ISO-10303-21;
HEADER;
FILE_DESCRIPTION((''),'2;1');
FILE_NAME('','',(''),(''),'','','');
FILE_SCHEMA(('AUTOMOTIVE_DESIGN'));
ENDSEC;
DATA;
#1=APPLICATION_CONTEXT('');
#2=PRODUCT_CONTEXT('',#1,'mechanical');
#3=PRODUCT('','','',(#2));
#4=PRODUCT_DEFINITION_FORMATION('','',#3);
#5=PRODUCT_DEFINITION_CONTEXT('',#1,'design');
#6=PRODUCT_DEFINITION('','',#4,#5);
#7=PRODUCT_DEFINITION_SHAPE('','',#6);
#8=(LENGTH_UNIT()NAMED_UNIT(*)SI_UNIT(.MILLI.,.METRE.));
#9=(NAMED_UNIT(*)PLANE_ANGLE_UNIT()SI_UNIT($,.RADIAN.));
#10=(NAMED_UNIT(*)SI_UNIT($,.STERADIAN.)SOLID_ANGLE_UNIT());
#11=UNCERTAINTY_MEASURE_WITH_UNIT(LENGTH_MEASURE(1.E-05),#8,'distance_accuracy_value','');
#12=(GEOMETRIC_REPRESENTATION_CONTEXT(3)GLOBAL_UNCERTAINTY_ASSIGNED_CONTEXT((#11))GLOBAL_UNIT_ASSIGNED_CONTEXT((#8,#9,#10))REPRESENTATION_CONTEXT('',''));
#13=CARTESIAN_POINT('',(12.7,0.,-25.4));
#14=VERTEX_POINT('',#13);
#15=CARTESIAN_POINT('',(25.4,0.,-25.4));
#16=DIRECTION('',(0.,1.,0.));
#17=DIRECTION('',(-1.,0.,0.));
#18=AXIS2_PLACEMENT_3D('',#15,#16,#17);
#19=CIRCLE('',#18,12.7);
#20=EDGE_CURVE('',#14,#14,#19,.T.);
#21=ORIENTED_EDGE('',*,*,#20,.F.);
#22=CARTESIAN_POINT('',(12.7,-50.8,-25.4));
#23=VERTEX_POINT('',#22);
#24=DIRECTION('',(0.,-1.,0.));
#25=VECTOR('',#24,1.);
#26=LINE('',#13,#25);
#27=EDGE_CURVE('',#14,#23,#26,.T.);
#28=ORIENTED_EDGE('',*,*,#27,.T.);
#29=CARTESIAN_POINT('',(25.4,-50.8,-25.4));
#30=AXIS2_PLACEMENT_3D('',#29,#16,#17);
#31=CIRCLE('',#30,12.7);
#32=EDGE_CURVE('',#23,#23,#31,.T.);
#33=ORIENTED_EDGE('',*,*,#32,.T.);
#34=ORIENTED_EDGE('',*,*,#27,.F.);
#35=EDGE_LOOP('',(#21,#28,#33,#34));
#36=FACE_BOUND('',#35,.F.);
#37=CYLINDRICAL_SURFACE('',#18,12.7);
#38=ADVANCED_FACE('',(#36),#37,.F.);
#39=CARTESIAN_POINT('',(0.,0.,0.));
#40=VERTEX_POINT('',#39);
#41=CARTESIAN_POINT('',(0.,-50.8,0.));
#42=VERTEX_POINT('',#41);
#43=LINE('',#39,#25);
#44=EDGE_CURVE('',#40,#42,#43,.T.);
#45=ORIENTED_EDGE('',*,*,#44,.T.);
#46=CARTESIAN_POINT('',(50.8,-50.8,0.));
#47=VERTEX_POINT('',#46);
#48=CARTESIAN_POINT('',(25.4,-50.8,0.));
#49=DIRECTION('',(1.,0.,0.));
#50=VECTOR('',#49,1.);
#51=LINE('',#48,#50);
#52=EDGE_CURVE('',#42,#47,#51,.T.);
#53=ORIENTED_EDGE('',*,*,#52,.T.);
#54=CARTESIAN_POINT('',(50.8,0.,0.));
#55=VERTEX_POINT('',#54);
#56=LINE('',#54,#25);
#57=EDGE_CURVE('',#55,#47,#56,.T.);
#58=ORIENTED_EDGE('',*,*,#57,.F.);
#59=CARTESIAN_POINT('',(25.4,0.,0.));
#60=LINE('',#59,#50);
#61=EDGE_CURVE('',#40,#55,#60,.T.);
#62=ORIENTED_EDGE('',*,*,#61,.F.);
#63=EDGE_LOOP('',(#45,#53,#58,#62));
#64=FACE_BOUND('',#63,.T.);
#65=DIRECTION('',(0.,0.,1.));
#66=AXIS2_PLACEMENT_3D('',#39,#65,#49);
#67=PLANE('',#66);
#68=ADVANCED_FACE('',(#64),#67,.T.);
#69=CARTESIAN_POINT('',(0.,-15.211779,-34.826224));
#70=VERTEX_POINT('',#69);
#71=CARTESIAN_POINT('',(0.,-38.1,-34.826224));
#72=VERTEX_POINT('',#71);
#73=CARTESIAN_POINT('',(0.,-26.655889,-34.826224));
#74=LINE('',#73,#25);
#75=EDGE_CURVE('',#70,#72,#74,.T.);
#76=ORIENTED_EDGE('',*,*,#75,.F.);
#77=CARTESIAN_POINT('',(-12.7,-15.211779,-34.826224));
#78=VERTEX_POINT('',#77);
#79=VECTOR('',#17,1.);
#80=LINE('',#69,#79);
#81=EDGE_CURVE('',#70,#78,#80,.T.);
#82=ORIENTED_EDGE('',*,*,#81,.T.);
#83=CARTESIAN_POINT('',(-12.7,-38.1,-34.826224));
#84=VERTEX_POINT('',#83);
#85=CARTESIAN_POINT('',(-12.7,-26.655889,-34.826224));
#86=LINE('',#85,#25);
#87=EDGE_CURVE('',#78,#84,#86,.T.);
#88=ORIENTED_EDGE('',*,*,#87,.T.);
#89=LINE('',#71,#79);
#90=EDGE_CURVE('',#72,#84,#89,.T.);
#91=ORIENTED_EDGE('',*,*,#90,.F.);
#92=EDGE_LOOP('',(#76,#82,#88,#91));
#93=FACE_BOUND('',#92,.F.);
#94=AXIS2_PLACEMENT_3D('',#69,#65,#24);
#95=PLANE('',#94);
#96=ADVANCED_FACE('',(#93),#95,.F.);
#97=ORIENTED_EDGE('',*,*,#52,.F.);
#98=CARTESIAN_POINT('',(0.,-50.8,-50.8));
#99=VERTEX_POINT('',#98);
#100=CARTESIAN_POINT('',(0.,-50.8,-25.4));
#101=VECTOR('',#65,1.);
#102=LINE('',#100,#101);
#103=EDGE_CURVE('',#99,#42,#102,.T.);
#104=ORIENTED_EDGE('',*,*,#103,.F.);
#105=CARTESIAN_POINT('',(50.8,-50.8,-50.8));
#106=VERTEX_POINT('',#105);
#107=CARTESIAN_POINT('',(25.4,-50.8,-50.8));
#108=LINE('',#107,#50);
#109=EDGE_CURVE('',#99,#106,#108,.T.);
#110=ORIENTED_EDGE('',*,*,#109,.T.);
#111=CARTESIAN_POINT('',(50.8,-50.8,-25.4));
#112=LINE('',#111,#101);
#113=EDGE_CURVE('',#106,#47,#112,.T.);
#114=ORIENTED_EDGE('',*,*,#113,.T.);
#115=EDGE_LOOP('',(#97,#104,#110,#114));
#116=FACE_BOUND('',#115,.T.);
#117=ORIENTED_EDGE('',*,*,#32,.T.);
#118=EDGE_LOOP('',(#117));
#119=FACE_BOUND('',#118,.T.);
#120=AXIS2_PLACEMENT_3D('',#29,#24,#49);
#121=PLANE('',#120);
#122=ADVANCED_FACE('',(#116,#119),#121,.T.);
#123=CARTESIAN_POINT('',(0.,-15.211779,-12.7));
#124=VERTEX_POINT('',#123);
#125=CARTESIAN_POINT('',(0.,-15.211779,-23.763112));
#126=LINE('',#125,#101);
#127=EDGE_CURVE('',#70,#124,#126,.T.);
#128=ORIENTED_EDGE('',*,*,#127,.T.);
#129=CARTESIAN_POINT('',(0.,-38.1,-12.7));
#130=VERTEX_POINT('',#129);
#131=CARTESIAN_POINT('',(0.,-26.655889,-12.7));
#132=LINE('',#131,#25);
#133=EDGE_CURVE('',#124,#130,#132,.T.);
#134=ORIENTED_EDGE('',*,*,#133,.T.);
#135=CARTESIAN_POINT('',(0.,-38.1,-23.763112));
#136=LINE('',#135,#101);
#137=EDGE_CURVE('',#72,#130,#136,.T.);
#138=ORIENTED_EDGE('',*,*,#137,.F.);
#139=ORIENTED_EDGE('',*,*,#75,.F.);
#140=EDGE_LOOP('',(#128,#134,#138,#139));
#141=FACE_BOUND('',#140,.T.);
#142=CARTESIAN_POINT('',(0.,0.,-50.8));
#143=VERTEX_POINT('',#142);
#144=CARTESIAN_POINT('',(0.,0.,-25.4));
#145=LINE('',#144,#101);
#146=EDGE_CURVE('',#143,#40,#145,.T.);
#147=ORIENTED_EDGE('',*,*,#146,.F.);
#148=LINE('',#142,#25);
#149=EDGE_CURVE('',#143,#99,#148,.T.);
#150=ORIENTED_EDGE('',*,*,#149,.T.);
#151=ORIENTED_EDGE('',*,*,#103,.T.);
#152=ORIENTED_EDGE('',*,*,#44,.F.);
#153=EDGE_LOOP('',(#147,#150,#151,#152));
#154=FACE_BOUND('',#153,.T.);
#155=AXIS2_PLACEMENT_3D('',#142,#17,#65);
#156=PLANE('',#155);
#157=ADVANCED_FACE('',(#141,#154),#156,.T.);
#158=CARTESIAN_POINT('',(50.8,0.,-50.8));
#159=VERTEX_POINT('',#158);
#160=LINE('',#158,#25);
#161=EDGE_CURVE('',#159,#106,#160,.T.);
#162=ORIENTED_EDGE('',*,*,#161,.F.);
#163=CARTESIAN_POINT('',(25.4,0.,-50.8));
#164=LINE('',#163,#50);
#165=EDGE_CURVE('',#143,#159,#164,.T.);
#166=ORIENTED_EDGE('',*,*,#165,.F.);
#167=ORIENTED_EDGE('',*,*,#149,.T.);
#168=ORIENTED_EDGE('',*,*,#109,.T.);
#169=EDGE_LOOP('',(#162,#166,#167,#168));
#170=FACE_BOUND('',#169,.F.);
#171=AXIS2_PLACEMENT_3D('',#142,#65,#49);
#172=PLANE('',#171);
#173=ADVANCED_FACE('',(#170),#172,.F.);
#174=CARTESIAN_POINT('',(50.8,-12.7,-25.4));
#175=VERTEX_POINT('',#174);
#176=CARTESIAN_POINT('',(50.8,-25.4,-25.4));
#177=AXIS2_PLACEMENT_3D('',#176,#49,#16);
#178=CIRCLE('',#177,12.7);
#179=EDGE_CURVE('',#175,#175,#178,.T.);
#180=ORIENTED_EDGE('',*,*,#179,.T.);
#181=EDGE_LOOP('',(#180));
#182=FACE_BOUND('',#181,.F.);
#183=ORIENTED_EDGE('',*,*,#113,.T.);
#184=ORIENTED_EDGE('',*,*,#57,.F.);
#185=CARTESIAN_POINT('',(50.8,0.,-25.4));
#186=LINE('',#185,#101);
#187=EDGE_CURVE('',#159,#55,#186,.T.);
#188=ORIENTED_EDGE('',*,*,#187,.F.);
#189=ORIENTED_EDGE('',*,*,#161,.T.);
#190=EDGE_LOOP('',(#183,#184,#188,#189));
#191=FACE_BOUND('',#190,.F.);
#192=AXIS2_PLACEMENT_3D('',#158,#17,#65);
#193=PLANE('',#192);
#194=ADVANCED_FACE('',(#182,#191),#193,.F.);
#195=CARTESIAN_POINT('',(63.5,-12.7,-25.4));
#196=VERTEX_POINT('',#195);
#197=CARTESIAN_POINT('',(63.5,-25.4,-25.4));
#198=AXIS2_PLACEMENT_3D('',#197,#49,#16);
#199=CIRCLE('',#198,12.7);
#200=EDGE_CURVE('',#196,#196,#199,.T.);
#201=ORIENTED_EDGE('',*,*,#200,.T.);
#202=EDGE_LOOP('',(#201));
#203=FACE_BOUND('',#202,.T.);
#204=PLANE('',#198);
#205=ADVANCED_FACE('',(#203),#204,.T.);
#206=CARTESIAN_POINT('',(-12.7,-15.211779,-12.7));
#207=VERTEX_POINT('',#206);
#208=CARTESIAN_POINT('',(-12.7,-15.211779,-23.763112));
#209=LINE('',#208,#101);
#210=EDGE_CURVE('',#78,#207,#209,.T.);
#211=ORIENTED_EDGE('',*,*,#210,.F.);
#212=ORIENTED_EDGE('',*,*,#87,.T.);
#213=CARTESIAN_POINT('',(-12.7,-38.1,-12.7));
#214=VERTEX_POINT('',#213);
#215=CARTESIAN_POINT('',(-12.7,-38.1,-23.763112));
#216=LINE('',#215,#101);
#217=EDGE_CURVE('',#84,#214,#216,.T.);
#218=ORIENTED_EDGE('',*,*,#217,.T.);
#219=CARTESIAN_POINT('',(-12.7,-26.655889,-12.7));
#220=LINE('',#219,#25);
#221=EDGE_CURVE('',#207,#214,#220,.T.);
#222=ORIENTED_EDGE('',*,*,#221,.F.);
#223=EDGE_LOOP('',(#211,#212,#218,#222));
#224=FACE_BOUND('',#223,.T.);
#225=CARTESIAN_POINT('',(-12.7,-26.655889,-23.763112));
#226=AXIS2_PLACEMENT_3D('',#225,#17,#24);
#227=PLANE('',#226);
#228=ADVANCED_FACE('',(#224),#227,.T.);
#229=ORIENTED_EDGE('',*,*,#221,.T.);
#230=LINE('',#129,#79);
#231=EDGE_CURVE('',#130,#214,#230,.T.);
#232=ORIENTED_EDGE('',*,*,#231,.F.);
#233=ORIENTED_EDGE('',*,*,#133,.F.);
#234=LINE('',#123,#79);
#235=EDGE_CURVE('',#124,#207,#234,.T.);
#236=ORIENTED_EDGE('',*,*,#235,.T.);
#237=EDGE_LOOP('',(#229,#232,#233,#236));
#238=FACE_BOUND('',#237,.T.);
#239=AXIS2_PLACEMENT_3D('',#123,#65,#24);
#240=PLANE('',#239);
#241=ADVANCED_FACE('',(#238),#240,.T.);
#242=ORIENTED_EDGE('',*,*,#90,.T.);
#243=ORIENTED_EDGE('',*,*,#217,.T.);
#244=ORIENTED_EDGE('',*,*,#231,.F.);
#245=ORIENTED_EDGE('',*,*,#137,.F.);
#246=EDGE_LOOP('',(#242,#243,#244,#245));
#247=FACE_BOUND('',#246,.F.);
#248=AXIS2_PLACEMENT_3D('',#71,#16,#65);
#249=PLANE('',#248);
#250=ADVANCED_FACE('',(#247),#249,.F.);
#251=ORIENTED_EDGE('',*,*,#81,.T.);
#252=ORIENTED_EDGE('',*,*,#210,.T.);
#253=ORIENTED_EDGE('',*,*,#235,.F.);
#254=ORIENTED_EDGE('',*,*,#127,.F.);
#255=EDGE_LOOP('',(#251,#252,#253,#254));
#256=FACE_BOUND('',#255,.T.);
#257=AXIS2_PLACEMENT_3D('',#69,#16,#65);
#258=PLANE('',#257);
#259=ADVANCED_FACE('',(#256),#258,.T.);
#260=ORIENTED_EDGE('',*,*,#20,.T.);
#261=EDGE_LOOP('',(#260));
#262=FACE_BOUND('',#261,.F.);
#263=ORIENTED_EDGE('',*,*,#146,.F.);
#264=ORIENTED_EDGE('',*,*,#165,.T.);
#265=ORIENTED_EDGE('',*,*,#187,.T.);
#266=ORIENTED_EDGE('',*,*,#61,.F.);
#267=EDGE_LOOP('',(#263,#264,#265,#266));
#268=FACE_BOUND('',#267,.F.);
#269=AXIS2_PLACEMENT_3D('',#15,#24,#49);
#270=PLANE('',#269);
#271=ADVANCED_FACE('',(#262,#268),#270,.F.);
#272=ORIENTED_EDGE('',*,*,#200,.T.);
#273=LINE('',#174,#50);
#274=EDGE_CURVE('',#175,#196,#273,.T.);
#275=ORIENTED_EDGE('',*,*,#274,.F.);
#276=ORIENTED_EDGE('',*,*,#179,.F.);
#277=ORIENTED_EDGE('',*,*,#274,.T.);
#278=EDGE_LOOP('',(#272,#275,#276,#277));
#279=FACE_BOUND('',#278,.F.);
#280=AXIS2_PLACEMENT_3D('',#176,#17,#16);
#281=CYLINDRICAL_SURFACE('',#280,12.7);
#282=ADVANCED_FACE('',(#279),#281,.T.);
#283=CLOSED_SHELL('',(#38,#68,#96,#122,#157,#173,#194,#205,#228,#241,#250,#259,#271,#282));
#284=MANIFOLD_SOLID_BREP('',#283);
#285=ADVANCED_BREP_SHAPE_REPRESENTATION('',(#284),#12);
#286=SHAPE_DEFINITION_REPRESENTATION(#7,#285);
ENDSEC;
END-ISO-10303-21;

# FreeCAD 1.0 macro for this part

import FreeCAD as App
import Part
import Sketcher
Q = App.Units.Quantity

doc = App.newDocument("Part")
body = doc.addObject("PartDesign::Body", "Body")

sketch1 = body.newObject("Sketcher::SketchObject", "Sketch")
sketch1.AttachmentSupport = (doc.getObject("XZ_Plane"), [""])
sketch1.MapMode = "FlatFace"
sketch1.addGeometry(Part.LineSegment(App.Vector(0, 0, 0), App.Vector(0, -50.8, 0)), False)
sketch1.addGeometry(Part.LineSegment(App.Vector(0, -50.8, 0), App.Vector(50.8, -50.8, 0)), False)
sketch1.addGeometry(Part.LineSegment(App.Vector(50.8, -50.8, 0), App.Vector(50.8, 0, 0)), False)
sketch1.addGeometry(Part.LineSegment(App.Vector(50.8, 0, 0), App.Vector(0, 0, 0)), False)
sketch1.addConstraint(Sketcher.Constraint("Coincident", 0, 2, 1, 1))
sketch1.addConstraint(Sketcher.Constraint("Coincident", 1, 2, 2, 1))
sketch1.addConstraint(Sketcher.Constraint("Coincident", 2, 2, 3, 1))
sketch1.addConstraint(Sketcher.Constraint("Coincident", 3, 2, 0, 1))
sketch1.addConstraint(Sketcher.Constraint("Vertical", 0))
sketch1.addConstraint(Sketcher.Constraint("Horizontal", 1))
sketch1.addConstraint(Sketcher.Constraint("Vertical", 2))
sketch1.addConstraint(Sketcher.Constraint("Horizontal", 3))
sketch1.addConstraint(Sketcher.Constraint("Coincident", 3, 2, -1, 1))
sketch1.addConstraint(Sketcher.Constraint("Equal", 3, 0))
sketch1.addConstraint(Sketcher.Constraint("DistanceX", 1, 1, 1, 2, Q("2 in")))
pad1 = body.newObject("PartDesign::Pad", "Pad")
pad1.Profile = sketch1
pad1.Length = Q("2 in")

sketch2 = body.newObject("Sketcher::SketchObject", "Sketch001")
sketch2.AttachmentSupport = (doc.getObject("XZ_Plane"), [""])
sketch2.MapMode = "FlatFace"
sketch2.addGeometry(Part.Circle(App.Vector(25.4, -25.4, 0), App.Vector(0, 0, 1), 12.7), False)
sketch2.addConstraint(Sketcher.Constraint("Diameter", 0, Q("1 in")))
sketch2.addConstraint(Sketcher.Constraint("DistanceX", -1, 1, 0, 3, Q("1 in")))
sketch2.addConstraint(Sketcher.Constraint("DistanceY", 0, 3, -1, 1, Q("1 in")))
pocket1 = body.newObject("PartDesign::Pocket", "Pocket")
pocket1.Profile = sketch2
pocket1.Length = Q("2 in")
pocket1.Reversed = True

sketch3 = body.newObject("Sketcher::SketchObject", "Sketch002")
sketch3.AttachmentSupport = (doc.getObject("YZ_Plane"), [""])
sketch3.MapMode = "FlatFace"
sketch3.addGeometry(Part.LineSegment(App.Vector(-15.211779, -12.7, 0), App.Vector(-15.211779, -34.826224, 0)), False)
sketch3.addGeometry(Part.LineSegment(App.Vector(-15.211779, -34.826224, 0), App.Vector(-38.1, -34.826224, 0)), False)
sketch3.addGeometry(Part.LineSegment(App.Vector(-38.1, -34.826224, 0), App.Vector(-38.1, -12.7, 0)), False)
sketch3.addGeometry(Part.LineSegment(App.Vector(-38.1, -12.7, 0), App.Vector(-15.211779, -12.7, 0)), False)
sketch3.addConstraint(Sketcher.Constraint("Coincident", 0, 2, 1, 1))
sketch3.addConstraint(Sketcher.Constraint("Coincident", 1, 2, 2, 1))
sketch3.addConstraint(Sketcher.Constraint("Coincident", 2, 2, 3, 1))
sketch3.addConstraint(Sketcher.Constraint("Coincident", 3, 2, 0, 1))
sketch3.addConstraint(Sketcher.Constraint("Vertical", 0))
sketch3.addConstraint(Sketcher.Constraint("Horizontal", 1))
sketch3.addConstraint(Sketcher.Constraint("Vertical", 2))
sketch3.addConstraint(Sketcher.Constraint("Horizontal", 3))
sketch3.addConstraint(Sketcher.Constraint("DistanceX", 1, 2, -1, 1, Q("1.5 in")))
sketch3.addConstraint(Sketcher.Constraint("DistanceY", 2, 2, -1, 1, Q("0.5 in")))
sketch3.addConstraint(Sketcher.Constraint("DistanceX", 1, 2, 1, 1, 22.888221))
sketch3.addConstraint(Sketcher.Constraint("DistanceY", 0, 2, 0, 1, 22.126224))
pad2 = body.newObject("PartDesign::Pad", "Pad001")
pad2.Profile = sketch3
pad2.Length = Q("0.5 in")
pad2.Reversed = True

sketch4 = body.newObject("Sketcher::SketchObject", "Sketch003")
sketch4.AttachmentSupport = (doc.getObject("YZ_Plane"), [""])
sketch4.MapMode = "FlatFace"
sketch4.AttachmentOffset = App.Placement(App.Vector(0, 0, 2 * 25.4), App.Rotation())
sketch4.addGeometry(Part.Circle(App.Vector(-25.4, -25.4, 0), App.Vector(0, 0, 1), 12.7), False)
sketch4.addConstraint(Sketcher.Constraint("Diameter", 0, Q("1 in")))
sketch4.addConstraint(Sketcher.Constraint("DistanceX", 0, 3, -1, 1, Q("1 in")))
sketch4.addConstraint(Sketcher.Constraint("DistanceY", 0, 3, -1, 1, Q("1 in")))
pad3 = body.newObject("PartDesign::Pad", "Pad002")
pad3.Profile = sketch4
pad3.Length = Q("0.5 in")

doc.recompute()
